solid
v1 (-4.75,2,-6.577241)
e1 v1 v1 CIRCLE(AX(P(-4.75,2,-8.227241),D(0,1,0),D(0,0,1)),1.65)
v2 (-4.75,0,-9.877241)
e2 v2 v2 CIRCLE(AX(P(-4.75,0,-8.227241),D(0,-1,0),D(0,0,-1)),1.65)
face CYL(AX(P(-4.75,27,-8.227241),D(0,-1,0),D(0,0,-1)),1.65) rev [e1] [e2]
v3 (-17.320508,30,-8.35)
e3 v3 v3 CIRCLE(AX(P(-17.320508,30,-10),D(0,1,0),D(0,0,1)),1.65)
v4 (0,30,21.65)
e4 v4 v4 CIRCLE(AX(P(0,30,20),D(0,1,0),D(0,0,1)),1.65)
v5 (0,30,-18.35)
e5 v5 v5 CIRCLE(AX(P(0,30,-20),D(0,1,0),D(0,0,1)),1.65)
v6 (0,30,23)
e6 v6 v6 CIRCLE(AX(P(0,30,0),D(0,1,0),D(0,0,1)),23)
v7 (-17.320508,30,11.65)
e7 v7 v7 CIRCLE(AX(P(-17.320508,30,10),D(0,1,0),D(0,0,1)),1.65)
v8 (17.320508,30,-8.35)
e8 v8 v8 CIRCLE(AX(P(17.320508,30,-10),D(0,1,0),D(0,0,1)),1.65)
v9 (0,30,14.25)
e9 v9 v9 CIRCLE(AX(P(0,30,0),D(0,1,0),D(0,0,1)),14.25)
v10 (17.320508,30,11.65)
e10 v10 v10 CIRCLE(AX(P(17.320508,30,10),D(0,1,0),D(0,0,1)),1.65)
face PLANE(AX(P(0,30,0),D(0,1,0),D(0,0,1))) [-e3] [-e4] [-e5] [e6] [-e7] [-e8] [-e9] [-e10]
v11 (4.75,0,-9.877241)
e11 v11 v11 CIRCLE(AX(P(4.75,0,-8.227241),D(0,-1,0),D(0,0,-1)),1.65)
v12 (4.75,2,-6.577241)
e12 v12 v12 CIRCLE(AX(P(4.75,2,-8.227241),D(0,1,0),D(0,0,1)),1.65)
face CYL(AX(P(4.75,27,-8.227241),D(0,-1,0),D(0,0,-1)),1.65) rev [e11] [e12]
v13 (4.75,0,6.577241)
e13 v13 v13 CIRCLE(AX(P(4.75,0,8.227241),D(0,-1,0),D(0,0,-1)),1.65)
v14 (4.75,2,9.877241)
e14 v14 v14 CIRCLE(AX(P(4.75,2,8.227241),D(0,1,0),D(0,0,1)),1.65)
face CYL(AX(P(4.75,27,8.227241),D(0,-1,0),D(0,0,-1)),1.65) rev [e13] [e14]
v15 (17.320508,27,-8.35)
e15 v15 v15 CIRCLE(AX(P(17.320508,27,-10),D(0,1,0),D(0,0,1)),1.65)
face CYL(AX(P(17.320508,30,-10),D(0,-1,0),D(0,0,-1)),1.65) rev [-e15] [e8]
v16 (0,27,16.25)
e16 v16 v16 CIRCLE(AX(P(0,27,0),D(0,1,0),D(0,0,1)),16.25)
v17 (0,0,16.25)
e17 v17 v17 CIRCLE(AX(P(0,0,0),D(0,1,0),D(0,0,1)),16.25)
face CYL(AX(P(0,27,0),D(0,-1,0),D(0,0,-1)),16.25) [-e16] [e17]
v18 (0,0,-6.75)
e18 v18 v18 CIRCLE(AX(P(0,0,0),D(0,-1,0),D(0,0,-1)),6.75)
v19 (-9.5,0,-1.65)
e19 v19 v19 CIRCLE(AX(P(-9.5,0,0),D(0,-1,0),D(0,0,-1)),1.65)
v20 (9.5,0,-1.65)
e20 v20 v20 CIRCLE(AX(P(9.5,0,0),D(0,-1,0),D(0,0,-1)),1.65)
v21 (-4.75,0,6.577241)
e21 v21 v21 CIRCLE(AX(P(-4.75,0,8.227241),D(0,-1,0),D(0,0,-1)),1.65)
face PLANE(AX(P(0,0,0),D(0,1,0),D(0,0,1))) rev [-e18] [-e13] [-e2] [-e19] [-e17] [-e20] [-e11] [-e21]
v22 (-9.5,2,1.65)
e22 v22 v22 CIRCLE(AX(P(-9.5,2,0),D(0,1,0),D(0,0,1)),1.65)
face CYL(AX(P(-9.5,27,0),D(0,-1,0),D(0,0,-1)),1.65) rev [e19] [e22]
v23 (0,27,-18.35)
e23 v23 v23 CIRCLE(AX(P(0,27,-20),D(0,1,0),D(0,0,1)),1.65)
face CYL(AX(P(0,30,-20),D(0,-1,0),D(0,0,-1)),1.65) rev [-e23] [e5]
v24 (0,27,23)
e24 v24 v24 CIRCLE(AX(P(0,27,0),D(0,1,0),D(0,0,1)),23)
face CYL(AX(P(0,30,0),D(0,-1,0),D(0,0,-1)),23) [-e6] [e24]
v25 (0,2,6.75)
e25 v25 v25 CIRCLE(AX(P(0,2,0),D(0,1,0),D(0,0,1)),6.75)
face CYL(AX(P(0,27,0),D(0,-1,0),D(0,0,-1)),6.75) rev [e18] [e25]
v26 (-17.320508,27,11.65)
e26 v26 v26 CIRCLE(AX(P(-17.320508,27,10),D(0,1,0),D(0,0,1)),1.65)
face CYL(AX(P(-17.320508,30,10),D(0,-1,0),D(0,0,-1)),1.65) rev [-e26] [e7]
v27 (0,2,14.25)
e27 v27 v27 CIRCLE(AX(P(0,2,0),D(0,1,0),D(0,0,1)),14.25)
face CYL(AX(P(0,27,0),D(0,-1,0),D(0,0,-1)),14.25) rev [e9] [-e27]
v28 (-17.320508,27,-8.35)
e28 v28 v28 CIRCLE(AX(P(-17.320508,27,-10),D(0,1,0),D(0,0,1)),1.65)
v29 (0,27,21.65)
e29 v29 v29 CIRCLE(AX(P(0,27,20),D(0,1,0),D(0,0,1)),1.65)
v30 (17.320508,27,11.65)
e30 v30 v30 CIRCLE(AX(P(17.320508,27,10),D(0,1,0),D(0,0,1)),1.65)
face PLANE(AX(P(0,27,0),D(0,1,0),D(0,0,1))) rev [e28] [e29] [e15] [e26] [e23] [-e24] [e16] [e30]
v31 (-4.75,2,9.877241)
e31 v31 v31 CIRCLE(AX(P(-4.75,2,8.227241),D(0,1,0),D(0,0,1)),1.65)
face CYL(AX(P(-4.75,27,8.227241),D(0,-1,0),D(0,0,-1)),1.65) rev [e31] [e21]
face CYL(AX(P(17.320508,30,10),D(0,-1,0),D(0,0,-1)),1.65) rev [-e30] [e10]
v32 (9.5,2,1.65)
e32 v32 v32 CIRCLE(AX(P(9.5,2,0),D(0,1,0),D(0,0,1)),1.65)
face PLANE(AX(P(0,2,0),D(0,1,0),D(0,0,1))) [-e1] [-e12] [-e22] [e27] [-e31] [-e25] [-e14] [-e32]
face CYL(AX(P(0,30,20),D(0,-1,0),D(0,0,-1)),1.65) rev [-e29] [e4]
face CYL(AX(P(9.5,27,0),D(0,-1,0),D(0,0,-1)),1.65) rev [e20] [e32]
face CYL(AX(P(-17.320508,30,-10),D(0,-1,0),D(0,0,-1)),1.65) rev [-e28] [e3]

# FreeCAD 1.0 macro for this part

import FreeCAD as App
import Part
import Sketcher
from FreeCAD import Vector
Q = App.Units.Quantity


def faces_at(feature, points):
    """Names of the faces that lie closest to the given points."""
    faces = feature.Shape.Faces
    near = lambda p: min(range(len(faces)), key=lambda i: faces[i].distToShape(Part.Vertex(*p))[0])
    return sorted({f"Face{near(p) + 1}" for p in points})

doc = App.newDocument("Part")
body = doc.addObject("PartDesign::Body", "Body")

sketch1 = body.newObject("Sketcher::SketchObject", "Sketch")
sketch1.AttachmentSupport = (doc.getObject("XZ_Plane"), [""])
sketch1.MapMode = "FlatFace"
sketch1.addGeometry(Part.Circle(Vector(0, 0, 0), Vector(0, 0, 1), 16), False)
sketch1.addConstraint(Sketcher.Constraint("Coincident", 0, 3, -1, 1))
sketch1.addConstraint(Sketcher.Constraint("Diameter", 0, Q("32.5 mm")))
pad1 = body.newObject("PartDesign::Pad", "Pad")
pad1.Profile = sketch1
pad1.Length = 27
pad1.Reversed = True
doc.recompute()

thickness = body.newObject("PartDesign::Thickness", "Thickness")
thickness.Base = (pad1, faces_at(pad1, [(0, 27, 0)]))
thickness.Value = 2
thickness.Reversed = True
thickness.Join = "Intersection"

sketch2 = body.newObject("Sketcher::SketchObject", "Sketch001")
sketch2.AttachmentSupport = (doc.getObject("XZ_Plane"), [""])
sketch2.MapMode = "FlatFace"
sketch2.addGeometry(Part.Circle(Vector(0, 0, 0), Vector(0, 0, 1), 6.8), False)
sketch2.addGeometry(Part.Circle(Vector(4.8, 8.2, 0), Vector(0, 0, 1), 1.6), False)
sketch2.addGeometry(Part.Circle(Vector(9.5, 0, 0), Vector(0, 0, 1), 1.6), False)
sketch2.addGeometry(Part.Circle(Vector(4.8, -8.2, 0), Vector(0, 0, 1), 1.6), False)
sketch2.addGeometry(Part.Circle(Vector(-4.8, -8.2, 0), Vector(0, 0, 1), 1.6), False)
sketch2.addGeometry(Part.Circle(Vector(-9.5, 0, 0), Vector(0, 0, 1), 1.6), False)
sketch2.addGeometry(Part.Circle(Vector(-4.8, 8.2, 0), Vector(0, 0, 1), 1.6), False)
sketch2.addConstraint(Sketcher.Constraint("Coincident", 0, 3, -1, 1))
sketch2.addConstraint(Sketcher.Constraint("Equal", 1, 2))
sketch2.addConstraint(Sketcher.Constraint("Equal", 2, 3))
sketch2.addConstraint(Sketcher.Constraint("Equal", 3, 4))
sketch2.addConstraint(Sketcher.Constraint("Equal", 4, 5))
sketch2.addConstraint(Sketcher.Constraint("Equal", 5, 6))
sketch2.addConstraint(Sketcher.Constraint("Symmetric", 1, 3, 4, 3, -1, 1))
sketch2.addConstraint(Sketcher.Constraint("Symmetric", 2, 3, 5, 3, -1, 1))
sketch2.addConstraint(Sketcher.Constraint("Symmetric", 3, 3, 6, 3, -1, 1))
sketch2.addConstraint(Sketcher.Constraint("Symmetric", 3, 3, 4, 3, -2))
sketch2.addConstraint(Sketcher.Constraint("PointOnObject", 2, 3, -1))
sketch2.addConstraint(Sketcher.Constraint("Diameter", 0, Q("13.5 mm")))
sketch2.addConstraint(Sketcher.Constraint("Diameter", 1, Q("3.3 mm")))
sketch2.addConstraint(Sketcher.Constraint("DistanceX", 5, 3, 2, 3, Q("19 mm")))
sketch2.addConstraint(Sketcher.Constraint("DistanceX", 4, 3, 3, 3, Q("9.5 mm")))
sketch2.addConstraint(Sketcher.Constraint("DistanceY", -1, 1, 1, 3, Q("8.227241 mm")))
pocket1 = body.newObject("PartDesign::Pocket", "Pocket")
pocket1.Profile = sketch2
pocket1.Length = 27

sketch3 = body.newObject("Sketcher::SketchObject", "Sketch002")
sketch3.AttachmentSupport = (doc.getObject("XZ_Plane"), [""])
sketch3.MapMode = "FlatFace"
sketch3.AttachmentOffset = App.Placement(Vector(0, 0, -27), App.Rotation())
sketch3.addGeometry(Part.Circle(Vector(0, 0, 0), Vector(0, 0, 1), 23), False)
sketch3.addGeometry(Part.Circle(Vector(-17.3, -10, 0), Vector(0, 0, 1), 1.6), False)
sketch3.addGeometry(Part.Circle(Vector(0, -20, 0), Vector(0, 0, 1), 1.6), False)
sketch3.addGeometry(Part.Circle(Vector(-17.3, 10, 0), Vector(0, 0, 1), 1.6), False)
sketch3.addGeometry(Part.Circle(Vector(17.3, -10, 0), Vector(0, 0, 1), 1.6), False)
sketch3.addGeometry(Part.Circle(Vector(0, 0, 0), Vector(0, 0, 1), 14.2), False)
sketch3.addGeometry(Part.Circle(Vector(0, 20, 0), Vector(0, 0, 1), 1.6), False)
sketch3.addGeometry(Part.Circle(Vector(17.3, 10, 0), Vector(0, 0, 1), 1.6), False)
sketch3.addConstraint(Sketcher.Constraint("Coincident", 0, 3, -1, 1))
sketch3.addConstraint(Sketcher.Constraint("Coincident", 5, 3, -1, 1))
sketch3.addConstraint(Sketcher.Constraint("Equal", 1, 2))
sketch3.addConstraint(Sketcher.Constraint("Equal", 2, 3))
sketch3.addConstraint(Sketcher.Constraint("Equal", 3, 4))
sketch3.addConstraint(Sketcher.Constraint("Equal", 4, 6))
sketch3.addConstraint(Sketcher.Constraint("Equal", 6, 7))
sketch3.addConstraint(Sketcher.Constraint("Symmetric", 3, 3, 4, 3, -1, 1))
sketch3.addConstraint(Sketcher.Constraint("Symmetric", 2, 3, 6, 3, -1, 1))
sketch3.addConstraint(Sketcher.Constraint("Symmetric", 1, 3, 7, 3, -1, 1))
sketch3.addConstraint(Sketcher.Constraint("Symmetric", 1, 3, 4, 3, -2))
sketch3.addConstraint(Sketcher.Constraint("PointOnObject", 2, 3, -2))
sketch3.addConstraint(Sketcher.Constraint("Diameter", 0, Q("46 mm")))
sketch3.addConstraint(Sketcher.Constraint("Diameter", 1, Q("3.3 mm")))
sketch3.addConstraint(Sketcher.Constraint("Diameter", 5, Q("28.5 mm")))
sketch3.addConstraint(Sketcher.Constraint("DistanceY", 1, 3, -1, 1, Q("10 mm")))
sketch3.addConstraint(Sketcher.Constraint("DistanceY", 2, 3, -1, 1, Q("20 mm")))
sketch3.addConstraint(Sketcher.Constraint("DistanceX", 1, 3, -1, 1, Q("17.320508 mm")))
pad2 = body.newObject("PartDesign::Pad", "Pad001")
pad2.Profile = sketch3
pad2.Length = 3
pad2.Reversed = True

doc.recompute()
